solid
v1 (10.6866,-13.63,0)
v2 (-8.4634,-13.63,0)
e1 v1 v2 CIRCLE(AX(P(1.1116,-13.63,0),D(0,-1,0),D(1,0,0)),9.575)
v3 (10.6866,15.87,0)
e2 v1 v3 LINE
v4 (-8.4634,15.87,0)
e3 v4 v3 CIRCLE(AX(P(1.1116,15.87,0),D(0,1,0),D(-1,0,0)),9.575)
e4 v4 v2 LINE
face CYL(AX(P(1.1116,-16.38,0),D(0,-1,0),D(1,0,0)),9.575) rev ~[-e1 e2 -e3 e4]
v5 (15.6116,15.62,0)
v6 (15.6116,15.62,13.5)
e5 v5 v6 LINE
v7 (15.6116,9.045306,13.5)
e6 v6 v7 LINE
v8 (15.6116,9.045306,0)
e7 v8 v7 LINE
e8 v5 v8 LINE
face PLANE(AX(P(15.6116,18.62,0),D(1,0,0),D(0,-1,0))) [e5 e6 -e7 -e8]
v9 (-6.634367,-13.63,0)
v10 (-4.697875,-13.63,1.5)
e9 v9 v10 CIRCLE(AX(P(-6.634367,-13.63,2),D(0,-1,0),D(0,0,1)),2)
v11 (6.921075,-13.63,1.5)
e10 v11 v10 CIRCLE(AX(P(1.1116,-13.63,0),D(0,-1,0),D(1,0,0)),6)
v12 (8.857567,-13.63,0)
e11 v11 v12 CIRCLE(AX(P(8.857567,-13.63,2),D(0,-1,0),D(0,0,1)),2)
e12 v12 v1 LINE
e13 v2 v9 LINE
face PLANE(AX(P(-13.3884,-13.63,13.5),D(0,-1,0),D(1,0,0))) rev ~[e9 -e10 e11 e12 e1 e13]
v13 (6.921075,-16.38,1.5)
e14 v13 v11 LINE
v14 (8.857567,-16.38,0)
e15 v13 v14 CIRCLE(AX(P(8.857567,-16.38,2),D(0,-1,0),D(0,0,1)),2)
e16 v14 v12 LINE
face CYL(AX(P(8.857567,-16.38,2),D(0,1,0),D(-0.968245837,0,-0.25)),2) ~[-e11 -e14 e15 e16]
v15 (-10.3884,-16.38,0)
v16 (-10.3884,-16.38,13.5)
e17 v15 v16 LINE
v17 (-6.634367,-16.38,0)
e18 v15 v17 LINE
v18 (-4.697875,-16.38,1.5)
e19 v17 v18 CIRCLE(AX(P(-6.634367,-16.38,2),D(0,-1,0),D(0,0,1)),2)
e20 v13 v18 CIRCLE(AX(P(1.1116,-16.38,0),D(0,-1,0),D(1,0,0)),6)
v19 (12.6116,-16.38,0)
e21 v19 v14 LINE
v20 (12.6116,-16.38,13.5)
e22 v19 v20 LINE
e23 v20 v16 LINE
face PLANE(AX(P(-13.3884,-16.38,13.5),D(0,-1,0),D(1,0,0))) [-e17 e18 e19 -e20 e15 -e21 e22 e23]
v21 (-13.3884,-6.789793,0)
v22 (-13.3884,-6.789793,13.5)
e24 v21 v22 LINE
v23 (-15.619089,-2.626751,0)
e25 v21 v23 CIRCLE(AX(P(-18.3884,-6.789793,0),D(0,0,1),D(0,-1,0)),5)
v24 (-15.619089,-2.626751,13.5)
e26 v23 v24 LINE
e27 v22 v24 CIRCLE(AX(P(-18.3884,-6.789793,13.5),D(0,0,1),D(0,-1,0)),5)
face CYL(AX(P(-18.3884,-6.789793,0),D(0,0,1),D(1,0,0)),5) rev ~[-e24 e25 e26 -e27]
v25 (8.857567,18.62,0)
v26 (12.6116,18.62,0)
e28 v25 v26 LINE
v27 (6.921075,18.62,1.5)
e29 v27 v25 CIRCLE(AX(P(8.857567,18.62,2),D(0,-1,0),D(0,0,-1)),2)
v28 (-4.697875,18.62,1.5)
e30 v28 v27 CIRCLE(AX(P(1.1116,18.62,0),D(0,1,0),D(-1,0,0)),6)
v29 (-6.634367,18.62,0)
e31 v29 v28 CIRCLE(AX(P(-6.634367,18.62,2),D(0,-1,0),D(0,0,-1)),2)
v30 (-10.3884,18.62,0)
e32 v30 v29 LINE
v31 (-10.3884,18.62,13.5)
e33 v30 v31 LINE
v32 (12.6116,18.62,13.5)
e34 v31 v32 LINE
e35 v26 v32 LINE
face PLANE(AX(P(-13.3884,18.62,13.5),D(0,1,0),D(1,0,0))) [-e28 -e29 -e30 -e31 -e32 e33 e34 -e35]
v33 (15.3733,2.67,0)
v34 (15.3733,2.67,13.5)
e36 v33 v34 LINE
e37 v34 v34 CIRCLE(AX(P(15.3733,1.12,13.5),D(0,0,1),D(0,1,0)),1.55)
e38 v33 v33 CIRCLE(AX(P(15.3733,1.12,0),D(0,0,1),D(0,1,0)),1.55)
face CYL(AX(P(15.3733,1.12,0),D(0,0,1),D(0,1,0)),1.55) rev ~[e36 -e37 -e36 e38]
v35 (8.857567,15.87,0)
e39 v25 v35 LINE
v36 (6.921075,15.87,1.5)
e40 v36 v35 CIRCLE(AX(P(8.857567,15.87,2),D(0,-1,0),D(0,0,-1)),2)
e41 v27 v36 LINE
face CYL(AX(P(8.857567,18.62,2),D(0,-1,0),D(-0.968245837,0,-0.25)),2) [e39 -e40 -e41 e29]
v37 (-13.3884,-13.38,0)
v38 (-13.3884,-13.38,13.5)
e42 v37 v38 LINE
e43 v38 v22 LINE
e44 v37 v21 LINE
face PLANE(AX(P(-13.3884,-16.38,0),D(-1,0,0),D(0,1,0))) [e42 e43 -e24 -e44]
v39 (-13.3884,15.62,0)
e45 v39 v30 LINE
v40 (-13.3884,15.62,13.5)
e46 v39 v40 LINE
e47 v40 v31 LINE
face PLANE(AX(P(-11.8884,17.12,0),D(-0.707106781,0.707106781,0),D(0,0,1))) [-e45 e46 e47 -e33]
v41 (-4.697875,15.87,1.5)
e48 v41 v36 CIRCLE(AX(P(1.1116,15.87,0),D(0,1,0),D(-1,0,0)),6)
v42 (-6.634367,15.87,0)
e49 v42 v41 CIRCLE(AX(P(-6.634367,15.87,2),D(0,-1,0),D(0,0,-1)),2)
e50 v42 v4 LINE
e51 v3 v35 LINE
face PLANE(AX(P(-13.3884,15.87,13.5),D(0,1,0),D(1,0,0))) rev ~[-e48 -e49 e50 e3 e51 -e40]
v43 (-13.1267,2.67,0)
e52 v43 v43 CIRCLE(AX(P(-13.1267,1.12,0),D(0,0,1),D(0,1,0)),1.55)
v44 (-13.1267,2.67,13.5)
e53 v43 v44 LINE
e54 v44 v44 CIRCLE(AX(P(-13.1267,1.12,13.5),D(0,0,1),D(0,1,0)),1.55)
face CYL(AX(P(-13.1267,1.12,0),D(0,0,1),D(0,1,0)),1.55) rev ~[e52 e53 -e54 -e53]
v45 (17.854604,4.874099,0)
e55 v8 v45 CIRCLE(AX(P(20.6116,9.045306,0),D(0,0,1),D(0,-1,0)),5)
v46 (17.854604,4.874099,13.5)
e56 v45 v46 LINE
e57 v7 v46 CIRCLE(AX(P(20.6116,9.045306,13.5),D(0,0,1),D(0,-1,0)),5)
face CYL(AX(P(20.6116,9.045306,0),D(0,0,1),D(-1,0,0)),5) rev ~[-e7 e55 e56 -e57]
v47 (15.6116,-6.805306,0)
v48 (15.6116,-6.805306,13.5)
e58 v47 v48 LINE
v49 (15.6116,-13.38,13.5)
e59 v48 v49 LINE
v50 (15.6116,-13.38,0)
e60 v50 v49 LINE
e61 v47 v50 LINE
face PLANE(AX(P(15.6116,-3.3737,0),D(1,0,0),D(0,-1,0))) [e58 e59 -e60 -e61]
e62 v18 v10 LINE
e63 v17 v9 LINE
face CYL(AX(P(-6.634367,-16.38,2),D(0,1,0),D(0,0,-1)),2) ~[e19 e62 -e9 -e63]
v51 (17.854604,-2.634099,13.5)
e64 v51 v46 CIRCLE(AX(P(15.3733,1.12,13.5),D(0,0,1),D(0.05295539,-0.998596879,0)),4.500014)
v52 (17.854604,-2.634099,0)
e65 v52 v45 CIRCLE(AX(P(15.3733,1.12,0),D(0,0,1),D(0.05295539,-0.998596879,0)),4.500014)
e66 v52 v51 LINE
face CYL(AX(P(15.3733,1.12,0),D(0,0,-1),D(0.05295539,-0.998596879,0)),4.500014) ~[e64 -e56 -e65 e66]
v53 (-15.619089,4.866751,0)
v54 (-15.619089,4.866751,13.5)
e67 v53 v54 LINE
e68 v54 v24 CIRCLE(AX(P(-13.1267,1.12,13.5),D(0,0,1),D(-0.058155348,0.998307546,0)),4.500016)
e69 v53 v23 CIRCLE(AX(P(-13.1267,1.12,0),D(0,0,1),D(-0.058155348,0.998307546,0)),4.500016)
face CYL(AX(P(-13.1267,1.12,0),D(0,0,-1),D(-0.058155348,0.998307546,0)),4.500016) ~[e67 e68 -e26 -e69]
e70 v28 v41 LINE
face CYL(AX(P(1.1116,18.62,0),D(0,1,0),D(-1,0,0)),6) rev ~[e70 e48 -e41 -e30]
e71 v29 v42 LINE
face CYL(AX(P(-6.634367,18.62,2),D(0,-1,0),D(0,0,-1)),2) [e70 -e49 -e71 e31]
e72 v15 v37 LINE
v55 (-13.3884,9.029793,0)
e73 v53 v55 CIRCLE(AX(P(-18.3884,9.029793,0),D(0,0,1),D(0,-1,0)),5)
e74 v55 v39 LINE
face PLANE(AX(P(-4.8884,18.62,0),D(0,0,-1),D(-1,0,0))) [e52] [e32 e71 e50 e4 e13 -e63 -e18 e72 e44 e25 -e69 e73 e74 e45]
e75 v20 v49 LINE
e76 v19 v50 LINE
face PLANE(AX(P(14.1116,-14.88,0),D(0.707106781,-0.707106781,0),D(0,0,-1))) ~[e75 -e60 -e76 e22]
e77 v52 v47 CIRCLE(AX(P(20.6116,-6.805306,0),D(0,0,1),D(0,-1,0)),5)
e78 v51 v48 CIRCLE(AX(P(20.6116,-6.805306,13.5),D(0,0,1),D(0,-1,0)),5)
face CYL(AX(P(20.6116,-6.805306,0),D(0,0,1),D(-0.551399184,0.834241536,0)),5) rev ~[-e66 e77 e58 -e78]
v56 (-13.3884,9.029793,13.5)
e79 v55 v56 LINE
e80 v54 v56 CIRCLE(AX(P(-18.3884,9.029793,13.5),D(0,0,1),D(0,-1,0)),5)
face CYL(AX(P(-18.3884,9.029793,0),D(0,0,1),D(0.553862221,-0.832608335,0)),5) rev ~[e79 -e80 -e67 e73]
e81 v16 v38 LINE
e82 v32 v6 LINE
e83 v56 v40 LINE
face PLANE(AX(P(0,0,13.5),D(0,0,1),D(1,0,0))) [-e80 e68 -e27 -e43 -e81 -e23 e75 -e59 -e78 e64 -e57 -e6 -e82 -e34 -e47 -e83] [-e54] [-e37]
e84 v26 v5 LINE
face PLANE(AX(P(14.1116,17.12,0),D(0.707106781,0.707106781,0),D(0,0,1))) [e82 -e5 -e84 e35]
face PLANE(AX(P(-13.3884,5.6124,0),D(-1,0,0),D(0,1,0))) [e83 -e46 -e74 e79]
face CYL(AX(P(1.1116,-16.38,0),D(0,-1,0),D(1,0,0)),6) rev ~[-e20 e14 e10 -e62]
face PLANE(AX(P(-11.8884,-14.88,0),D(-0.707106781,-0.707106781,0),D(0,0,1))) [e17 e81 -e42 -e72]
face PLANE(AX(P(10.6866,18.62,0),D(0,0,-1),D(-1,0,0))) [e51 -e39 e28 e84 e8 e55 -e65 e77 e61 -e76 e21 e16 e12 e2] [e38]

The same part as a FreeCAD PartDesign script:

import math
import FreeCAD as App
import Part
import Sketcher

V = App.Vector


def edges_at(feature, points):
    """Names of the edges that pass closest to the given points."""
    edges = feature.Shape.Edges
    near = lambda p: min(range(len(edges)), key=lambda i: edges[i].distToShape(Part.Vertex(*p))[0])
    return sorted({f"Edge{near(p) + 1}" for p in points})

doc = App.newDocument("Part")
body = doc.addObject("PartDesign::Body", "Body")

sketch1 = body.newObject("Sketcher::SketchObject", "Sketch")
sketch1.AttachmentSupport = (doc.getObject("XY_Plane"), [""])
sketch1.MapMode = "FlatFace"
sketch1.addGeometry(Part.LineSegment(V(15.6116, 18.62, 0), V(-13.3884, 18.62, 0)), False)
sketch1.addGeometry(Part.LineSegment(V(-13.3884, 18.62, 0), V(-13.3884, 5.6124, 0)), False)
sketch1.addGeometry(Part.ArcOfCircle(Part.Circle(V(-13.1267, 1.12, 0), V(0, 0, 1), 4.500016), math.radians(93.333937), math.radians(266.666063)), False)
sketch1.addGeometry(Part.LineSegment(V(-13.3884, -3.3724, 0), V(-13.3884, -16.38, 0)), False)
sketch1.addGeometry(Part.LineSegment(V(-13.3884, -16.38, 0), V(15.6116, -16.38, 0)), False)
sketch1.addGeometry(Part.LineSegment(V(15.6116, -16.38, 0), V(15.6116, -3.3737, 0)), False)
sketch1.addGeometry(Part.ArcOfCircle(Part.Circle(V(15.3733, 1.12, 0), V(0, 0, 1), 4.500014), math.radians(-86.96446), math.radians(86.96446)), False)
sketch1.addGeometry(Part.LineSegment(V(15.6116, 5.6137, 0), V(15.6116, 18.62, 0)), False)
sketch1.addConstraint(Sketcher.Constraint("Coincident", 0, 2, 1, 1))
sketch1.addConstraint(Sketcher.Constraint("Coincident", 1, 2, 2, 1))
sketch1.addConstraint(Sketcher.Constraint("Coincident", 2, 2, 3, 1))
sketch1.addConstraint(Sketcher.Constraint("Coincident", 3, 2, 4, 1))
sketch1.addConstraint(Sketcher.Constraint("Coincident", 4, 2, 5, 1))
sketch1.addConstraint(Sketcher.Constraint("Coincident", 5, 2, 6, 1))
sketch1.addConstraint(Sketcher.Constraint("Coincident", 6, 2, 7, 1))
sketch1.addConstraint(Sketcher.Constraint("Coincident", 7, 2, 0, 1))
sketch1.addConstraint(Sketcher.Constraint("Horizontal", 0))
sketch1.addConstraint(Sketcher.Constraint("Vertical", 1))
sketch1.addConstraint(Sketcher.Constraint("Vertical", 3))
sketch1.addConstraint(Sketcher.Constraint("Horizontal", 4))
sketch1.addConstraint(Sketcher.Constraint("Vertical", 5))
sketch1.addConstraint(Sketcher.Constraint("Vertical", 7))
sketch1.addConstraint(Sketcher.Constraint("Equal", 2, 6))
sketch1.addConstraint(Sketcher.Constraint("Horizontal", 2, 3, 6, 3))
sketch1.addConstraint(Sketcher.Constraint("Vertical", 1, 2, 2, 2))
sketch1.addConstraint(Sketcher.Constraint("Vertical", 5, 2, 6, 2))
sketch1.addConstraint(Sketcher.Constraint("Equal", 1, 3))
sketch1.addConstraint(Sketcher.Constraint("Radius", 2, 4.5))
sketch1.addConstraint(Sketcher.Constraint("DistanceX", 0, 2, 0, 1, 29.0))
sketch1.addConstraint(Sketcher.Constraint("DistanceY", 3, 2, 0, 2, 35.0))
sketch1.addConstraint(Sketcher.Constraint("DistanceX", 2, 3, 6, 3, 28.5))
sketch1.addConstraint(Sketcher.Constraint("DistanceY", -1, 1, 2, 3, 1.12))
sketch1.addConstraint(Sketcher.Constraint("DistanceY", 1, 2, 1, 1, 13.0076))
sketch1.addConstraint(Sketcher.Constraint("DistanceX", 2, 3, -1, 1, 13.1267))
pad1 = body.newObject("PartDesign::Pad", "Pad")
pad1.Profile = sketch1
pad1.Length = 13.5

sketch2 = body.newObject("Sketcher::SketchObject", "Sketch001")
sketch2.AttachmentSupport = (doc.getObject("XY_Plane"), [""])
sketch2.MapMode = "FlatFace"
sketch2.addGeometry(Part.Circle(V(-13.1267, 1.12, 0), V(0, 0, 1), 1.55), False)
sketch2.addGeometry(Part.Circle(V(15.3733, 1.12, 0), V(0, 0, 1), 1.55), False)
sketch2.addConstraint(Sketcher.Constraint("Equal", 0, 1))
sketch2.addConstraint(Sketcher.Constraint("Horizontal", 0, 3, 1, 3))
sketch2.addConstraint(Sketcher.Constraint("Diameter", 0, 3.1))
sketch2.addConstraint(Sketcher.Constraint("DistanceX", 0, 3, 1, 3, 28.5))
sketch2.addConstraint(Sketcher.Constraint("DistanceY", -1, 1, 0, 3, 1.12))
sketch2.addConstraint(Sketcher.Constraint("DistanceX", 0, 3, -1, 1, 13.1267))
doc.recompute()
hole = body.newObject("PartDesign::Hole", "Hole")
hole.Profile = sketch2
hole.ThreadType = "None"
hole.Diameter = 3.1
hole.DepthType = "ThroughAll"
hole.Reversed = True

sketch3 = body.newObject("Sketcher::SketchObject", "Sketch002")
sketch3.AttachmentSupport = (doc.getObject("XZ_Plane"), [""])
sketch3.MapMode = "FlatFace"
sketch3.AttachmentOffset = App.Placement(V(0, 0, 16.38), App.Rotation())
sketch3.addGeometry(Part.Circle(V(1.1116, 0, 0), V(0, 0, 1), 9.575), False)
sketch3.addConstraint(Sketcher.Constraint("PointOnObject", 0, 3, -1))
sketch3.addConstraint(Sketcher.Constraint("Diameter", 0, 19.15))
sketch3.addConstraint(Sketcher.Constraint("DistanceX", -1, 1, 0, 3, 1.1116))
pocket1 = body.newObject("PartDesign::Pocket", "Pocket")
pocket1.Profile = sketch3
pocket1.Type = "ThroughAll"

sketch4 = body.newObject("Sketcher::SketchObject", "Sketch003")
sketch4.AttachmentSupport = (doc.getObject("XZ_Plane"), [""])
sketch4.MapMode = "FlatFace"
sketch4.AttachmentOffset = App.Placement(V(0, 0, 16.38), App.Rotation())
sketch4.addGeometry(Part.LineSegment(V(7.1116, 0, 0), V(10.6866, 0, 0)), False)
sketch4.addGeometry(Part.ArcOfCircle(Part.Circle(V(1.1116, 0, 0), V(0, 0, 1), 9.575), math.radians(0), math.radians(180)), False)
sketch4.addGeometry(Part.LineSegment(V(-8.4634, 0, 0), V(-4.8884, 0, 0)), False)
sketch4.addGeometry(Part.ArcOfCircle(Part.Circle(V(1.1116, 0, 0), V(0, 0, 1), 6), math.radians(0), math.radians(180)), False)
sketch4.addConstraint(Sketcher.Constraint("Coincident", 0, 2, 1, 1))
sketch4.addConstraint(Sketcher.Constraint("Coincident", 1, 2, 2, 1))
sketch4.addConstraint(Sketcher.Constraint("Coincident", 2, 2, 3, 2))
sketch4.addConstraint(Sketcher.Constraint("Coincident", 3, 1, 0, 1))
sketch4.addConstraint(Sketcher.Constraint("Horizontal", 0))
sketch4.addConstraint(Sketcher.Constraint("Horizontal", 2))
sketch4.addConstraint(Sketcher.Constraint("Coincident", 3, 3, 1, 3))
sketch4.addConstraint(Sketcher.Constraint("PointOnObject", 1, 3, -1))
sketch4.addConstraint(Sketcher.Constraint("PointOnObject", 0, 2, -1))
sketch4.addConstraint(Sketcher.Constraint("PointOnObject", 1, 2, -1))
sketch4.addConstraint(Sketcher.Constraint("Radius", 3, 6.0))
sketch4.addConstraint(Sketcher.Constraint("Radius", 1, 9.575))
sketch4.addConstraint(Sketcher.Constraint("DistanceX", -1, 1, 1, 3, 1.1116))
pad2 = body.newObject("PartDesign::Pad", "Pad001")
pad2.Profile = sketch4
pad2.Length = 2.75
pad2.Reversed = True

sketch5 = body.newObject("Sketcher::SketchObject", "Sketch004")
sketch5.AttachmentSupport = (doc.getObject("XZ_Plane"), [""])
sketch5.MapMode = "FlatFace"
sketch5.AttachmentOffset = App.Placement(V(0, 0, -18.62), App.Rotation())
sketch5.addGeometry(Part.ArcOfCircle(Part.Circle(V(1.1116, 0, 0), V(0, 0, 1), 6), math.radians(0), math.radians(180)), False)
sketch5.addGeometry(Part.LineSegment(V(-4.8884, 0, 0), V(-8.4634, 0, 0)), False)
sketch5.addGeometry(Part.ArcOfCircle(Part.Circle(V(1.1116, 0, 0), V(0, 0, 1), 9.575), math.radians(0), math.radians(180)), False)
sketch5.addGeometry(Part.LineSegment(V(10.6866, 0, 0), V(7.1116, 0, 0)), False)
sketch5.addConstraint(Sketcher.Constraint("Coincident", 0, 2, 1, 1))
sketch5.addConstraint(Sketcher.Constraint("Coincident", 1, 2, 2, 2))
sketch5.addConstraint(Sketcher.Constraint("Coincident", 2, 1, 3, 1))
sketch5.addConstraint(Sketcher.Constraint("Coincident", 3, 2, 0, 1))
sketch5.addConstraint(Sketcher.Constraint("Horizontal", 1))
sketch5.addConstraint(Sketcher.Constraint("Horizontal", 3))
sketch5.addConstraint(Sketcher.Constraint("Coincident", 2, 3, 0, 3))
sketch5.addConstraint(Sketcher.Constraint("PointOnObject", 0, 3, -1))
sketch5.addConstraint(Sketcher.Constraint("PointOnObject", 0, 2, -1))
sketch5.addConstraint(Sketcher.Constraint("PointOnObject", 2, 1, -1))
sketch5.addConstraint(Sketcher.Constraint("Radius", 0, 6.0))
sketch5.addConstraint(Sketcher.Constraint("Radius", 2, 9.575))
sketch5.addConstraint(Sketcher.Constraint("DistanceX", -1, 1, 0, 3, 1.1116))
pad3 = body.newObject("PartDesign::Pad", "Pad002")
pad3.Profile = sketch5
pad3.Length = 2.75
doc.recompute()

fillet = body.newObject("PartDesign::Fillet", "Fillet")
fillet.Base = (pad3, edges_at(pad3, [
    (15.612, 5.614, 6.75),
    (15.612, -3.374, 6.75),
    (-13.388, -3.372, 6.75),
    (-13.388, 5.612, 6.75),
]))
fillet.Radius = 5
doc.recompute()

fillet2 = body.newObject("PartDesign::Fillet", "Fillet001")
fillet2.Base = (fillet, edges_at(fillet, [
    (7.112, -15.005, 0),
    (-4.888, -15.005, 0),
    (7.112, 17.245, 0),
    (-4.888, 17.245, 0),
]))
fillet2.Radius = 2
doc.recompute()

chamfer = body.newObject("PartDesign::Chamfer", "Chamfer")
chamfer.Base = (fillet2, edges_at(fillet2, [
    (-13.388, 18.62, 6.75),
    (15.612, 18.62, 6.75),
    (-13.388, -16.38, 6.75),
    (15.612, -16.38, 6.75),
]))
chamfer.Size = 3

doc.recompute()
